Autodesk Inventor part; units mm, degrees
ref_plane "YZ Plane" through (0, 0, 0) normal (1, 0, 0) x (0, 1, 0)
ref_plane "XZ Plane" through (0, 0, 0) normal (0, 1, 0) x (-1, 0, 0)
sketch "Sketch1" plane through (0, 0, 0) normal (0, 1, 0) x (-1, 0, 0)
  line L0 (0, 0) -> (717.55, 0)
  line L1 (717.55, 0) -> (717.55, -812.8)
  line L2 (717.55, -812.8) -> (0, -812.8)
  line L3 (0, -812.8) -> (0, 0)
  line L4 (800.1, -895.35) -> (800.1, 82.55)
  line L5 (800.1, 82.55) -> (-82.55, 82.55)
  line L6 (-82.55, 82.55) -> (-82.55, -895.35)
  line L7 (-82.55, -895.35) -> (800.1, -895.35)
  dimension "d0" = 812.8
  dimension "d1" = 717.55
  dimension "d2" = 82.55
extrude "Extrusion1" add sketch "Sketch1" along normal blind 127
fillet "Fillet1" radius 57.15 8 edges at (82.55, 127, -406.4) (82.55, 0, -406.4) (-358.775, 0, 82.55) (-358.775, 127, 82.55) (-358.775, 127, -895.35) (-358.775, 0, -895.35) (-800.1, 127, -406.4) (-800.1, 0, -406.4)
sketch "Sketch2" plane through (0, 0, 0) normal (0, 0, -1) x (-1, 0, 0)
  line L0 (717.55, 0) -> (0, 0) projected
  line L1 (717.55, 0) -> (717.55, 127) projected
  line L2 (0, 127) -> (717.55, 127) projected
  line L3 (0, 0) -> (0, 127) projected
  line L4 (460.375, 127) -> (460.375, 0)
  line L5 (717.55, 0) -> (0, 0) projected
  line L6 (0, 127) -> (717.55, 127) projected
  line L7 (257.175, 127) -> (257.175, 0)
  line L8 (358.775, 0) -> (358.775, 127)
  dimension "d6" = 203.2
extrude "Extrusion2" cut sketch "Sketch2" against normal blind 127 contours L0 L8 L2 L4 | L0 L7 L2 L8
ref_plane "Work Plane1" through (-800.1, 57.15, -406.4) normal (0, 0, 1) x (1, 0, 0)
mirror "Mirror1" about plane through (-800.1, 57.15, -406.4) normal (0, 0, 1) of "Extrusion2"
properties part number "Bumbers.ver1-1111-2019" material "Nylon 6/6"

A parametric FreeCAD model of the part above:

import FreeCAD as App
import Part
import Sketcher
Q = App.Units.Quantity


def edges_at(feature, points):
    """Names of the edges that pass closest to the given points."""
    edges = feature.Shape.Edges
    near = lambda p: min(range(len(edges)), key=lambda i: edges[i].distToShape(Part.Vertex(*p))[0])
    return sorted({f"Edge{near(p) + 1}" for p in points})


def add_polygon(sketch, points):
    """Adds a closed chain of lines whose ends are joined by coincident constraints."""
    first, n = sketch.GeometryCount, len(points)
    for a, b in zip(points, points[1:] + points[:1]):
        sketch.addGeometry(Part.LineSegment(App.Vector(*a, 0), App.Vector(*b, 0)), False)
    for i in range(n):
        sketch.addConstraint(Sketcher.Constraint("Coincident", first + i, 2, first + (i + 1) % n, 1))

doc = App.newDocument("Part")
params = doc.addObject("Spreadsheet::Sheet", "Params")
for row, (alias, value) in enumerate([
    ("sketch1_height", "32 in"),
    ("sketch1_width", "28.25 in"),
    ("pad1_length", "5 in"),
    ("fillet_radius", "2.25 in"),
    ("sketch2_width", "8 in"),
    ("sketch2_height", "5 in"),
    ("pocket1_length", "5 in"),
], start=1):
    params.set(f"A{row}", alias)
    params.set(f"B{row}", "=" + value)
    params.setAlias(f"B{row}", alias)

body = doc.addObject("PartDesign::Body", "Body")
body.AllowCompound = True

# Sketch on XZ plane
sketch1 = body.newObject("Sketcher::SketchObject", "Sketch")
sketch1.AttachmentSupport = (doc.getObject("XZ_Plane"), [""])
sketch1.MapMode = "FlatFace"
add_polygon(sketch1, [(83, -895), (-800, -895), (-800, 83), (83, 83)])  # lines 0-3
add_polygon(sketch1, [(0, -813), (0, 0), (-718, 0), (-718, -813)])  # lines 4-7
sketch1.addConstraint([
    Sketcher.Constraint("Horizontal", 0),
    Sketcher.Constraint("Vertical", 1),
    Sketcher.Constraint("Horizontal", 2),
    Sketcher.Constraint("Vertical", 3),
    Sketcher.Constraint("Vertical", 4),
    Sketcher.Constraint("Horizontal", 5),
    Sketcher.Constraint("Vertical", 6),
    Sketcher.Constraint("Horizontal", 7),
    Sketcher.Constraint("Coincident", 4, 2, -1, 1),
    Sketcher.Constraint("DistanceY", 4, 1, 4, 2, Q("32 in")),
    Sketcher.Constraint("DistanceX", 5, 2, 5, 1, Q("28.25 in")),
    Sketcher.Constraint("DistanceY", -1, 1, 1, 2, Q("3.25 in")),
    Sketcher.Constraint("DistanceX", -1, 1, 2, 2, Q("3.25 in")),
    Sketcher.Constraint("DistanceX", 1, 2, 5, 2, Q("3.25 in")),
    Sketcher.Constraint("DistanceY", 0, 2, 6, 2, Q("3.25 in")),
])
sketch1.setExpression("Constraints[17]", "Params.sketch1_height")
sketch1.setExpression("Constraints[18]", "Params.sketch1_width")
pad1 = body.newObject("PartDesign::Pad", "Pad")
pad1.Profile = sketch1
pad1.setExpression("Length", "Params.pad1_length")
pad1.Reversed = True
doc.recompute()

fillet = body.newObject("PartDesign::Fillet", "Fillet")
fillet.Base = (pad1, edges_at(pad1, [
    (82.55, 127, -406.4),
    (82.55, 0, -406.4),
    (-358.775, 0, 82.55),
    (-358.775, 127, 82.55),
    (-358.775, 127, -895.35),
    (-358.775, 0, -895.35),
    (-800.1, 127, -406.4),
    (-800.1, 0, -406.4),
]))
fillet.setExpression("Radius", "Params.fillet_radius")

# Sketch on XY plane
sketch2 = body.newObject("Sketcher::SketchObject", "Sketch001")
sketch2.AttachmentSupport = (doc.getObject("XY_Plane"), [""])
sketch2.MapMode = "FlatFace"
add_polygon(sketch2, [(-460, 0), (-460, 127), (-257, 127), (-257, 0)])  # lines 0-3
sketch2.addConstraint([
    Sketcher.Constraint("Vertical", 0),
    Sketcher.Constraint("Horizontal", 1),
    Sketcher.Constraint("Vertical", 2),
    Sketcher.Constraint("Horizontal", 3),
    Sketcher.Constraint("PointOnObject", 2, 2, -1),
    Sketcher.Constraint("DistanceX", 1, 1, 1, 2, Q("8 in")),
    Sketcher.Constraint("DistanceY", 0, 1, 0, 2, Q("5 in")),
    Sketcher.Constraint("DistanceX", 0, 2, -1, 1, Q("18.125 in")),
])
sketch2.setExpression("Constraints[9]", "Params.sketch2_width")
sketch2.setExpression("Constraints[10]", "Params.sketch2_height")
pocket1 = body.newObject("PartDesign::Pocket", "Pocket")
pocket1.Profile = sketch2
pocket1.setExpression("Length", "Params.pocket1_length")
pocket1.Reversed = True
doc.recompute()

datumplane = body.newObject("PartDesign::Plane", "DatumPlane")
datumplane.AttachmentSupport = (doc.getObject("XY_Plane"), [""])
datumplane.MapMode = "FlatFace"
datumplane.AttachmentOffset = App.Placement(App.Vector(0, 0, -16 * 25.4), App.Rotation())
mirrored = body.newObject("PartDesign::Mirrored", "Mirrored")
mirrored.Originals = [pocket1]
mirrored.MirrorPlane = (datumplane, [""])
body.Tip = mirrored

doc.recompute()
